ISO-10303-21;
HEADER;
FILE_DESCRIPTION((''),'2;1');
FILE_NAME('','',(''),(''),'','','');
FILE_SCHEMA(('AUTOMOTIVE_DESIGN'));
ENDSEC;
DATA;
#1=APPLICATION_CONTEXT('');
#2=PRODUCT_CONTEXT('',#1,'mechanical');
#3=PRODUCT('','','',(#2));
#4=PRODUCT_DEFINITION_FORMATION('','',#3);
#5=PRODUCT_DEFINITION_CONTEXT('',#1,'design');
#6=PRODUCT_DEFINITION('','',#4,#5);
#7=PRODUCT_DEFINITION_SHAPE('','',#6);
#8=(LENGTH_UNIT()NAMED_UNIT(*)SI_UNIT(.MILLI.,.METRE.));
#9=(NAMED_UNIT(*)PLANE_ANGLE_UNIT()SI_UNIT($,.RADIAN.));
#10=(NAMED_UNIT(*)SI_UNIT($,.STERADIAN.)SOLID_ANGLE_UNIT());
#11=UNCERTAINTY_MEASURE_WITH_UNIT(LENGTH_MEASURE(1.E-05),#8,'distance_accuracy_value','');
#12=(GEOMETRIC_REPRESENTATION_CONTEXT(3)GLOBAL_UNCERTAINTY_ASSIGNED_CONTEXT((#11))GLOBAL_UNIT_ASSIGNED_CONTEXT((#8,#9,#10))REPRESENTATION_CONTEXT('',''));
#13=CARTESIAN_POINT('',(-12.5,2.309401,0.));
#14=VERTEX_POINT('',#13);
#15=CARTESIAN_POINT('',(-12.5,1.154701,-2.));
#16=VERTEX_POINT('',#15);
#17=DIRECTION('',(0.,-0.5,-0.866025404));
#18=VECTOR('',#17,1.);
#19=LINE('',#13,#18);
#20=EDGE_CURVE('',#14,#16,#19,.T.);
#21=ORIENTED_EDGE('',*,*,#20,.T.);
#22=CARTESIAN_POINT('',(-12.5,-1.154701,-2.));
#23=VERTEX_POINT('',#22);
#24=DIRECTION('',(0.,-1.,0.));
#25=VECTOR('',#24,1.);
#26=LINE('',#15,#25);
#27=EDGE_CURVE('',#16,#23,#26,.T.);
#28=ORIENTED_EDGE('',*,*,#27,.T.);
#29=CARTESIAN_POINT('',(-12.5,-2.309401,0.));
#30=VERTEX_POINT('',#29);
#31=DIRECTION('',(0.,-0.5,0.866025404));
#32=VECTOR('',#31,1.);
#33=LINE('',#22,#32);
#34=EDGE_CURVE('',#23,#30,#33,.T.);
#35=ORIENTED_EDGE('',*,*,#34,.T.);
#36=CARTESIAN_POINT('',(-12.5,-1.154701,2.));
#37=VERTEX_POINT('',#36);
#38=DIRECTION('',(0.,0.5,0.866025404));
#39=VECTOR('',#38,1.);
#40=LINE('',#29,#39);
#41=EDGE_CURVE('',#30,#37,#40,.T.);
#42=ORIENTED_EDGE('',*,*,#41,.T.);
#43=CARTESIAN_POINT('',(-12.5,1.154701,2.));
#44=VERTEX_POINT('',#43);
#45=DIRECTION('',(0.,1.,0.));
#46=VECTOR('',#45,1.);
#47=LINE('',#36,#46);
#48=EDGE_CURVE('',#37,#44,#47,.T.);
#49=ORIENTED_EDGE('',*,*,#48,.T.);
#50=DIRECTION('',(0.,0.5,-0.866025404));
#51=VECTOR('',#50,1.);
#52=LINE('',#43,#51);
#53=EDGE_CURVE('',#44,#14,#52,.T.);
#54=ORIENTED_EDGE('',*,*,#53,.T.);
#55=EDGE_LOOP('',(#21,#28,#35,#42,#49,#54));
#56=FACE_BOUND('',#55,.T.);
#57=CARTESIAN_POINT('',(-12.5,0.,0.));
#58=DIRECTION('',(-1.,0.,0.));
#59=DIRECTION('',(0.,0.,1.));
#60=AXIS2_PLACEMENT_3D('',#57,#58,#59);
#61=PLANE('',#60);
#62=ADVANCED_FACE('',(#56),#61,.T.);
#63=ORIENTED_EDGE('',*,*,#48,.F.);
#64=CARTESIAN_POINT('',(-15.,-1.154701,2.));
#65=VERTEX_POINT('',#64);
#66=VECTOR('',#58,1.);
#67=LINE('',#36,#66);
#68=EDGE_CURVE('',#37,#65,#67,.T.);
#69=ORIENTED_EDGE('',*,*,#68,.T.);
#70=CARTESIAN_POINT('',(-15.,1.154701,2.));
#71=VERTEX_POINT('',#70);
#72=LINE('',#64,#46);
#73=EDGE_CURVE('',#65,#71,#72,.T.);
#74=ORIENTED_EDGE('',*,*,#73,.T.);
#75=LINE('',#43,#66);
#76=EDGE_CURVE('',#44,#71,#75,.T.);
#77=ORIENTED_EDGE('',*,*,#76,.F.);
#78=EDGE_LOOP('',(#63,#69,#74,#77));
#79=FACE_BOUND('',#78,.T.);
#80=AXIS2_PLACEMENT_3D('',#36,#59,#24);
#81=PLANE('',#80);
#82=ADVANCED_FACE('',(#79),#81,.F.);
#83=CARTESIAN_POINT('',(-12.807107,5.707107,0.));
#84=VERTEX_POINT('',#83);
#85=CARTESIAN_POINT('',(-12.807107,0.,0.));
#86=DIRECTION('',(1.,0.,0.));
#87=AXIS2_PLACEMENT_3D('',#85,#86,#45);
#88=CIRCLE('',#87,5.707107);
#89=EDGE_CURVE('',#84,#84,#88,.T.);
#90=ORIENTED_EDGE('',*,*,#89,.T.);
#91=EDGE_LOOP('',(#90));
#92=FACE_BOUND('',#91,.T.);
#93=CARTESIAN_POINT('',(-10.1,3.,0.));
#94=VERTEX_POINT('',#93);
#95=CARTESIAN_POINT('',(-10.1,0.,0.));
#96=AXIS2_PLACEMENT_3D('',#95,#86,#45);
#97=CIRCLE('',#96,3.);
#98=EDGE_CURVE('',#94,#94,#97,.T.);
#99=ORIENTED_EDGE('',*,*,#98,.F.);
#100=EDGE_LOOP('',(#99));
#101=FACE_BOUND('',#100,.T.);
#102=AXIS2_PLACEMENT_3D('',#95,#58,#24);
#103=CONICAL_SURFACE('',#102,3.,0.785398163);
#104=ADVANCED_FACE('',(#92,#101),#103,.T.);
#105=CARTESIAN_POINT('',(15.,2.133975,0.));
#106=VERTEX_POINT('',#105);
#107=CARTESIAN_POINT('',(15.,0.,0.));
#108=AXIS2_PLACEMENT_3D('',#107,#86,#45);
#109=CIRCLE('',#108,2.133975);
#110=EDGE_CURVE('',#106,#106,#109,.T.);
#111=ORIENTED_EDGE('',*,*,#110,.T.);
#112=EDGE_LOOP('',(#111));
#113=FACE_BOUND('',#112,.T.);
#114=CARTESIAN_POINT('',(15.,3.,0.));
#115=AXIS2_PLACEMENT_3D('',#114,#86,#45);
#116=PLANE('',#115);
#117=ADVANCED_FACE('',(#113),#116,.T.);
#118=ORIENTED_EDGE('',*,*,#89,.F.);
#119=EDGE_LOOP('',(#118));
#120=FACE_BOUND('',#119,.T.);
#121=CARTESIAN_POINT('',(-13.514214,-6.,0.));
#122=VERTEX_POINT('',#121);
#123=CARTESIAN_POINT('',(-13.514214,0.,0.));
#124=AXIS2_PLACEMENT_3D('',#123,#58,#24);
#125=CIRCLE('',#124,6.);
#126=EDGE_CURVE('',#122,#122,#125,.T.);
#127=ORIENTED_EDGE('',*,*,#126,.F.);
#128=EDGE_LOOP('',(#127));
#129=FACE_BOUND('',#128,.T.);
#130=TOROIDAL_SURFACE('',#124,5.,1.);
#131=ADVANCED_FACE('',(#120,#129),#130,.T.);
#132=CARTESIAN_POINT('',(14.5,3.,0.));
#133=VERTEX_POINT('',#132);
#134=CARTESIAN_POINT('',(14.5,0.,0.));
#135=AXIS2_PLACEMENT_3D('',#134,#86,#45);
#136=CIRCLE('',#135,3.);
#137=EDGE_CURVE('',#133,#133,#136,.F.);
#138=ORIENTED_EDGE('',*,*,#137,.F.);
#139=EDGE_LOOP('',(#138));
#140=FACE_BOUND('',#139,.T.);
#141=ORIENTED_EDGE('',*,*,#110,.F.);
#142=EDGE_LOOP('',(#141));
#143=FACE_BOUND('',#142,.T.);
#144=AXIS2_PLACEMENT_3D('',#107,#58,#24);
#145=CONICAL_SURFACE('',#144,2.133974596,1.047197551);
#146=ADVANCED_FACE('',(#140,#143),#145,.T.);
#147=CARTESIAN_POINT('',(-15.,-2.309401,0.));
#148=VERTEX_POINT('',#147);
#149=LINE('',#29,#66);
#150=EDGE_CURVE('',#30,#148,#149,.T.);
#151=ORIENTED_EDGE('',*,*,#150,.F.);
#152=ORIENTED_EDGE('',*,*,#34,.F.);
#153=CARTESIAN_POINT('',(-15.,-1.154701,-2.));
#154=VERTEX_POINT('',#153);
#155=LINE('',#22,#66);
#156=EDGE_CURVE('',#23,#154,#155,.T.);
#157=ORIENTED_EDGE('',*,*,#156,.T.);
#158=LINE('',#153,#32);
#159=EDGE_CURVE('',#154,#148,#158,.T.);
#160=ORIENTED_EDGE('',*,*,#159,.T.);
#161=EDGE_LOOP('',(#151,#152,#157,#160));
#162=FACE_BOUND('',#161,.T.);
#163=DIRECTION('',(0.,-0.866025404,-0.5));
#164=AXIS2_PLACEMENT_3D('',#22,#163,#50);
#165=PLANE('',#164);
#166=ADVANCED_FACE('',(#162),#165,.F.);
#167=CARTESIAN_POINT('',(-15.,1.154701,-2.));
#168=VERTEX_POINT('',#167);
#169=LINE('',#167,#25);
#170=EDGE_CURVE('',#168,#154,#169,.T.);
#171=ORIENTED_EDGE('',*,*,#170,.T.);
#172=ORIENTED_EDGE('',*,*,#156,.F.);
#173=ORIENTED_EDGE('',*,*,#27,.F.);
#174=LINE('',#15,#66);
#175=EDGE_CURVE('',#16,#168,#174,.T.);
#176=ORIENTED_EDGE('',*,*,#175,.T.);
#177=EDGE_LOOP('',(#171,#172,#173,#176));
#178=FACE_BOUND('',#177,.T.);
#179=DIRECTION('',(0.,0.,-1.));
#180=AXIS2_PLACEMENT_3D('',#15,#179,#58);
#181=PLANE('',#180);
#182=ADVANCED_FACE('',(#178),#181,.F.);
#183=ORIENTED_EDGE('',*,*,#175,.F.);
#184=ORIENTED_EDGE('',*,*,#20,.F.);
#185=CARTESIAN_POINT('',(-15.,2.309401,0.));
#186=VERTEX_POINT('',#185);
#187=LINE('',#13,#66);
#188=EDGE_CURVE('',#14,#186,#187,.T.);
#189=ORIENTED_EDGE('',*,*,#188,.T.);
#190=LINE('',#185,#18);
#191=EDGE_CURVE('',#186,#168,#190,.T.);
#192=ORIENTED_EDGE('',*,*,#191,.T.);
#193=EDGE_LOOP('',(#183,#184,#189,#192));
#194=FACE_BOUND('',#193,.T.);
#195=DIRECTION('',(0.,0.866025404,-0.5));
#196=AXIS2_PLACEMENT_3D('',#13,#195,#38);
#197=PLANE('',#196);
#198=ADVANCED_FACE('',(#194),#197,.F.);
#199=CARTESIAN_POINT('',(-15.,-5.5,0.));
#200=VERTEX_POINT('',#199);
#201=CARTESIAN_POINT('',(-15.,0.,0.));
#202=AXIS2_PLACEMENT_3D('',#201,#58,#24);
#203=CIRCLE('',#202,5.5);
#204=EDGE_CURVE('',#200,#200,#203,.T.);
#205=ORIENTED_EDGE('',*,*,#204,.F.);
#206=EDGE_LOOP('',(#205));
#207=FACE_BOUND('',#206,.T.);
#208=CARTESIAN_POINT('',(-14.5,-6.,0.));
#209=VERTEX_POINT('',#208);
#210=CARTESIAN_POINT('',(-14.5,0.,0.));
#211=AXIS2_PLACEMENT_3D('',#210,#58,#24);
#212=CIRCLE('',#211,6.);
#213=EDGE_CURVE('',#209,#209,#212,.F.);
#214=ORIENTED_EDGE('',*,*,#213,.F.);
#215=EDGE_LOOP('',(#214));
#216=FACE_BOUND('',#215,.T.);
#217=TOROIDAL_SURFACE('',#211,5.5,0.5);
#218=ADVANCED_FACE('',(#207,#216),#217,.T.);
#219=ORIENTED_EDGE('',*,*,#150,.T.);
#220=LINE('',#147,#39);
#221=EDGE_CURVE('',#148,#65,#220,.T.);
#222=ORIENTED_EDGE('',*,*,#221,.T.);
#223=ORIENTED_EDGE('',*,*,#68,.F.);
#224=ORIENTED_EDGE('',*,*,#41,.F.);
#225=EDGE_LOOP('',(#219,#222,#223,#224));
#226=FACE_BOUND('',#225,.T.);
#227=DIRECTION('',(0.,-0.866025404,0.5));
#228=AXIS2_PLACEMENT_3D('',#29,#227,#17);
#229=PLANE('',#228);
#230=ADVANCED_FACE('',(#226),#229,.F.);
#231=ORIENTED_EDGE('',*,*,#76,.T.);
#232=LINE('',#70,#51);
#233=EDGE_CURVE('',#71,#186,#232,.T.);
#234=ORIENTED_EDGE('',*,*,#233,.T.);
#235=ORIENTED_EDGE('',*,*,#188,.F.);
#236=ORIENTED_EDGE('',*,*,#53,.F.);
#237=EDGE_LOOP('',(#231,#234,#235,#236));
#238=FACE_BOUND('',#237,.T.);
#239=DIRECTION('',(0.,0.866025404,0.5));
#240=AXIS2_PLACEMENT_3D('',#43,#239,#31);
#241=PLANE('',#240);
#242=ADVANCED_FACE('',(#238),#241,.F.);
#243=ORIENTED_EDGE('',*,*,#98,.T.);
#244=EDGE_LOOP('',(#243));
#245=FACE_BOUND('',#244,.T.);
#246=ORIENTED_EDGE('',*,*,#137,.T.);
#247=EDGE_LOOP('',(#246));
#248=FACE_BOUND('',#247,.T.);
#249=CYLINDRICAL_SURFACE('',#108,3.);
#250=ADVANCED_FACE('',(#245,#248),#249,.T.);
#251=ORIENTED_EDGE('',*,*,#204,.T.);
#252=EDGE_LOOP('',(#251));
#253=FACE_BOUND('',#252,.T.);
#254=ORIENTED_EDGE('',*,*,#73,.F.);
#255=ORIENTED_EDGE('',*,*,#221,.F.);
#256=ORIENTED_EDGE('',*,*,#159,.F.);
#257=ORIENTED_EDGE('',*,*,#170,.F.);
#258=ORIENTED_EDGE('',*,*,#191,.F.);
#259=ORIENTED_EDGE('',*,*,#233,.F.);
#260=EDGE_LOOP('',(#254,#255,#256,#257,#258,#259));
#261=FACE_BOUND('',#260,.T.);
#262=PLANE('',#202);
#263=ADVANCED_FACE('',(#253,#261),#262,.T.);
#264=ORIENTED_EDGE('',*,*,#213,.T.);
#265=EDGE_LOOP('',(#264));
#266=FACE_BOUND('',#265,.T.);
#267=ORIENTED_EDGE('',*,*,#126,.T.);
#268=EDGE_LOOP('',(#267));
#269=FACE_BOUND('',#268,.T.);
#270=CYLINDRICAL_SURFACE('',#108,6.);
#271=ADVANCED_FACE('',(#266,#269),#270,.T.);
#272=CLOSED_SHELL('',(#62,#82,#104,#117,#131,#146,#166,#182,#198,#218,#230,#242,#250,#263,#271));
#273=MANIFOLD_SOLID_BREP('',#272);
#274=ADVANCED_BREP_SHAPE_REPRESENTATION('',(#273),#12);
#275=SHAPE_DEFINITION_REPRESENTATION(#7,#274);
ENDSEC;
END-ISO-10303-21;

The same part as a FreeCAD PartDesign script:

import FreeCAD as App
import Part
import Sketcher
from FreeCAD import Vector
Q = App.Units.Quantity


def edges_at(feature, points):
    """Names of the edges that pass closest to the given points."""
    edges = feature.Shape.Edges
    near = lambda p: min(range(len(edges)), key=lambda i: edges[i].distToShape(Part.Vertex(*p))[0])
    return sorted({f"Edge{near(p) + 1}" for p in points})

doc = App.newDocument("Part")
body = doc.addObject("PartDesign::Body", "Body")

sketch1 = body.newObject("Sketcher::SketchObject", "Sketch")
sketch1.AttachmentSupport = (doc.getObject("XY_Plane"), [""])
sketch1.MapMode = "FlatFace"
sketch1.addGeometry(Part.LineSegment(Vector(-15, 0, 0), Vector(15, 0, 0)), False)
sketch1.addGeometry(Part.LineSegment(Vector(15, 0, 0), Vector(15, 3, 0)), False)
sketch1.addGeometry(Part.LineSegment(Vector(15, 3, 0), Vector(-10.1, 3, 0)), False)
sketch1.addGeometry(Part.LineSegment(Vector(-10.1, 3, 0), Vector(-13.1, 6, 0)), False)
sketch1.addGeometry(Part.LineSegment(Vector(-13.1, 6, 0), Vector(-15, 6, 0)), False)
sketch1.addGeometry(Part.LineSegment(Vector(-15, 6, 0), Vector(-15, 0, 0)), False)
sketch1.addConstraint(Sketcher.Constraint("Coincident", 0, 2, 1, 1))
sketch1.addConstraint(Sketcher.Constraint("Coincident", 1, 2, 2, 1))
sketch1.addConstraint(Sketcher.Constraint("Coincident", 2, 2, 3, 1))
sketch1.addConstraint(Sketcher.Constraint("Coincident", 3, 2, 4, 1))
sketch1.addConstraint(Sketcher.Constraint("Coincident", 4, 2, 5, 1))
sketch1.addConstraint(Sketcher.Constraint("Coincident", 5, 2, 0, 1))
sketch1.addConstraint(Sketcher.Constraint("Horizontal", 0))
sketch1.addConstraint(Sketcher.Constraint("Vertical", 1))
sketch1.addConstraint(Sketcher.Constraint("Horizontal", 2))
sketch1.addConstraint(Sketcher.Constraint("Horizontal", 4))
sketch1.addConstraint(Sketcher.Constraint("Vertical", 5))
sketch1.addConstraint(Sketcher.Constraint("Symmetric", 0, 2, 5, 2, -1, 1))
sketch1.addConstraint(Sketcher.Constraint("DistanceX", 0, 1, 0, 2, 30.0))
sketch1.addConstraint(Sketcher.Constraint("DistanceY", 1, 1, 1, 2, 3.0))
sketch1.addConstraint(Sketcher.Constraint("DistanceY", 5, 2, 5, 1, 6.0))
sketch1.addConstraint(Sketcher.Constraint("Angle", 3, Q("135 deg")))
sketch1.addConstraint(Sketcher.Constraint("DistanceX", 2, 2, 2, 1, 25.1))
revolution = body.newObject("PartDesign::Revolution", "Revolution")
revolution.Profile = sketch1
revolution.ReferenceAxis = (sketch1, ["H_Axis"])
revolution.Angle = 360
doc.recompute()

fillet = body.newObject("PartDesign::Fillet", "Fillet")
fillet.Base = (revolution, edges_at(revolution, [(-15, -6, 0)]))
fillet.Radius = 0.5
doc.recompute()

fillet2 = body.newObject("PartDesign::Fillet", "Fillet001")
fillet2.Base = (fillet, edges_at(fillet, [(-13.1, -6, 0)]))
fillet2.Radius = 1

sketch2 = body.newObject("Sketcher::SketchObject", "Sketch001")
sketch2.AttachmentSupport = (doc.getObject("YZ_Plane"), [""])
sketch2.MapMode = "FlatFace"
sketch2.AttachmentOffset = App.Placement(Vector(0, 0, -15), App.Rotation())
sketch2.addGeometry(Part.LineSegment(Vector(2.309401, 0, 0), Vector(1.154701, -2, 0)), False)
sketch2.addGeometry(Part.LineSegment(Vector(1.154701, -2, 0), Vector(-1.154701, -2, 0)), False)
sketch2.addGeometry(Part.LineSegment(Vector(-1.154701, -2, 0), Vector(-2.309401, 0, 0)), False)
sketch2.addGeometry(Part.LineSegment(Vector(-2.309401, 0, 0), Vector(-1.154701, 2, 0)), False)
sketch2.addGeometry(Part.LineSegment(Vector(-1.154701, 2, 0), Vector(1.154701, 2, 0)), False)
sketch2.addGeometry(Part.LineSegment(Vector(1.154701, 2, 0), Vector(2.309401, 0, 0)), False)
sketch2.addConstraint(Sketcher.Constraint("Coincident", 0, 2, 1, 1))
sketch2.addConstraint(Sketcher.Constraint("Coincident", 1, 2, 2, 1))
sketch2.addConstraint(Sketcher.Constraint("Coincident", 2, 2, 3, 1))
sketch2.addConstraint(Sketcher.Constraint("Coincident", 3, 2, 4, 1))
sketch2.addConstraint(Sketcher.Constraint("Coincident", 4, 2, 5, 1))
sketch2.addConstraint(Sketcher.Constraint("Coincident", 5, 2, 0, 1))
sketch2.addConstraint(Sketcher.Constraint("Horizontal", 1))
sketch2.addConstraint(Sketcher.Constraint("Horizontal", 4))
sketch2.addConstraint(Sketcher.Constraint("Symmetric", 0, 2, 3, 2, -1, 1))
sketch2.addConstraint(Sketcher.Constraint("Symmetric", 2, 2, 5, 2, -1, 1))
sketch2.addConstraint(Sketcher.Constraint("PointOnObject", 2, 2, -1))
sketch2.addConstraint(Sketcher.Constraint("Parallel", 2, 5))
sketch2.addConstraint(Sketcher.Constraint("Vertical", 1, 2, 3, 2))
sketch2.addConstraint(Sketcher.Constraint("Angle", 0, Q("-120 deg")))
sketch2.addConstraint(Sketcher.Constraint("DistanceY", 0, 2, -1, 1, 2.0))
sketch2.addConstraint(Sketcher.Constraint("DistanceX", 1, 2, 1, 1, 2.309401))
pocket1 = body.newObject("PartDesign::Pocket", "Pocket")
pocket1.Profile = sketch2
pocket1.Length = 2.5
pocket1.Reversed = True
doc.recompute()

chamfer = body.newObject("PartDesign::Chamfer", "Chamfer")
chamfer.Base = (pocket1, edges_at(pocket1, [(15, -3, 0)]))
chamfer.ChamferType = "Two distances"
chamfer.Size = 0.5
chamfer.Size2 = 0.866025

doc.recompute()
